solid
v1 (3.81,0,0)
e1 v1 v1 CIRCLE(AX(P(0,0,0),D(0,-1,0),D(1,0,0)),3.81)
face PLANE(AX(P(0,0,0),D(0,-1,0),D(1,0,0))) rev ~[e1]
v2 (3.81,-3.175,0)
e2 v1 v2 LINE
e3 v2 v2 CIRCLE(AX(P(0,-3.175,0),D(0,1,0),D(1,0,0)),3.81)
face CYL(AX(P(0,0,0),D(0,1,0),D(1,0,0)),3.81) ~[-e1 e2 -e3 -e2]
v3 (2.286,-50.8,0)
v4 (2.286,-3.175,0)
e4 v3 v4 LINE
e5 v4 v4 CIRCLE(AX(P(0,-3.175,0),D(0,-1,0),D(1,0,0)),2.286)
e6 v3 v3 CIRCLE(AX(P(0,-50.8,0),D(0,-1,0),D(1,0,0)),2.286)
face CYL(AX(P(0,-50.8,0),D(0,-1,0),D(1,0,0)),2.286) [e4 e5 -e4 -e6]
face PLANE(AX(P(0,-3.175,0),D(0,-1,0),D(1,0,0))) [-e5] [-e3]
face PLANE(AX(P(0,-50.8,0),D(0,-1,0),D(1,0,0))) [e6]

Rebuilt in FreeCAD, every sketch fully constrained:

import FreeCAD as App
import Part
import Sketcher
from FreeCAD import Vector
Q = App.Units.Quantity

doc = App.newDocument("Part")
body = doc.addObject("PartDesign::Body", "Body")

# Sketch on XZ plane
sketch1 = body.newObject("Sketcher::SketchObject", "Sketch")
sketch1.AttachmentSupport = (doc.getObject("XZ_Plane"), [""])
sketch1.MapMode = "FlatFace"
sketch1.addGeometry(Part.Circle(Vector(0, 0, 0), Vector(0, 0, 1), 3.8), False)
sketch1.addConstraint([
    Sketcher.Constraint("Coincident", 0, 3, -1, 1),
    Sketcher.Constraint("Diameter", 0, Q("0.3 in")),
])
pad1 = body.newObject("PartDesign::Pad", "Pad")
pad1.Profile = sketch1
pad1.Length = Q("2 in")

# Sketch on XZ plane
sketch2 = body.newObject("Sketcher::SketchObject", "Sketch001")
sketch2.AttachmentSupport = (doc.getObject("XZ_Plane"), [""])
sketch2.MapMode = "FlatFace"
sketch2.AttachmentOffset = App.Placement(Vector(0, 0, 2 * 25.4), App.Rotation())
sketch2.addGeometry([
    Part.Circle(Vector(0, 0, 0), Vector(0, 0, 1), 5.1),
    Part.Circle(Vector(0, 0, 0), Vector(0, 0, 1), 2.3),
], False)
sketch2.addConstraint([
    Sketcher.Constraint("Coincident", 0, 3, -1, 1),
    Sketcher.Constraint("Coincident", 1, 3, -1, 1),
    Sketcher.Constraint("Diameter", 0, Q("0.4 in")),
    Sketcher.Constraint("Diameter", 1, Q("0.18 in")),
])
pocket1 = body.newObject("PartDesign::Pocket", "Pocket")
pocket1.Profile = sketch2
pocket1.Length = Q("1.875 in")

doc.recompute()
